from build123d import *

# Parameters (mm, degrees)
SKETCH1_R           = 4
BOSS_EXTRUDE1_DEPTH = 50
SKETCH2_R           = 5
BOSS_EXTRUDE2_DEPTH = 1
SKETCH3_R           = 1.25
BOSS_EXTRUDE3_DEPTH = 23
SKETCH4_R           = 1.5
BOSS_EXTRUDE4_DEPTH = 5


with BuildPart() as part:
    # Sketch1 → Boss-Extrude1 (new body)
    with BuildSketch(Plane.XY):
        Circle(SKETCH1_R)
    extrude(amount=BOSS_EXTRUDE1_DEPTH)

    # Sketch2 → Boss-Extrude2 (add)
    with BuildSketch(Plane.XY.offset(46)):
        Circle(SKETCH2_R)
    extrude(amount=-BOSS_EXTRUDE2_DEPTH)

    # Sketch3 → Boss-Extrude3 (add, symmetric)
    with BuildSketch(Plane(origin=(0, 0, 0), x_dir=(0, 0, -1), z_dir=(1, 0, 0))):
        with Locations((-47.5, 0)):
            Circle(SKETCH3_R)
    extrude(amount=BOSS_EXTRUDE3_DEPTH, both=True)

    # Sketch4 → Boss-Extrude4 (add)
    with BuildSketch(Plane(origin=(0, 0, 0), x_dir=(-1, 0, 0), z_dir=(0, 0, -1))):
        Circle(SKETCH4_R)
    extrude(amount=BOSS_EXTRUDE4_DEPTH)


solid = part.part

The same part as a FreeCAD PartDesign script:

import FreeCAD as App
import Part
import Sketcher
from FreeCAD import Vector

doc = App.newDocument("Part")
body = doc.addObject("PartDesign::Body", "Body")

# Sketch on XY plane
sketch1 = doc.addObject("Sketcher::SketchObject", "Sketch")
body.addObject(sketch1)
sketch1.AttachmentSupport = (doc.XY_Plane, [""])
sketch1.MapMode = "FlatFace"
sketch1.addGeometry(Part.Circle(Vector(0, 0, 0), Vector(0, 0, 1), 4), False)
sketch1.addConstraint([
    Sketcher.Constraint("Coincident", 0, 3, -1, 1),
    Sketcher.Constraint("Diameter", 0, 8.0),
])
pad1 = doc.addObject("PartDesign::Pad", "Pad")
body.addObject(pad1)
pad1.Profile = sketch1
pad1.Length = 50

# Sketch on XY plane
sketch2 = doc.addObject("Sketcher::SketchObject", "Sketch001")
body.addObject(sketch2)
sketch2.AttachmentSupport = (doc.XY_Plane, [""])
sketch2.MapMode = "FlatFace"
sketch2.AttachmentOffset = App.Placement(Vector(0, 0, 46), App.Rotation())
sketch2.addGeometry(Part.Circle(Vector(0, 0, 0), Vector(0, 0, 1), 5), False)
sketch2.addConstraint([
    Sketcher.Constraint("Coincident", 0, 3, -1, 1),
    Sketcher.Constraint("Diameter", 0, 10.0),
])
pad2 = doc.addObject("PartDesign::Pad", "Pad001")
body.addObject(pad2)
pad2.Profile = sketch2
pad2.Length = 1
pad2.Reversed = True

# Sketch on YZ plane
sketch3 = doc.addObject("Sketcher::SketchObject", "Sketch002")
body.addObject(sketch3)
sketch3.AttachmentSupport = (doc.YZ_Plane, [""])
sketch3.MapMode = "FlatFace"
sketch3.addGeometry(Part.Circle(Vector(0, 47.5, 0), Vector(0, 0, 1), 1.2), False)
sketch3.addConstraint([
    Sketcher.Constraint("PointOnObject", 0, 3, -2),
    Sketcher.Constraint("Diameter", 0, 2.5),
    Sketcher.Constraint("DistanceY", -1, 1, 0, 3, 47.5),
])
pad3 = doc.addObject("PartDesign::Pad", "Pad002")
body.addObject(pad3)
pad3.Profile = sketch3
pad3.Length = 46
pad3.Midplane = True

# Sketch on XY plane
sketch4 = doc.addObject("Sketcher::SketchObject", "Sketch003")
body.addObject(sketch4)
sketch4.AttachmentSupport = (doc.XY_Plane, [""])
sketch4.MapMode = "FlatFace"
sketch4.addGeometry(Part.Circle(Vector(0, 0, 0), Vector(0, 0, 1), 1.5), False)
sketch4.addConstraint([
    Sketcher.Constraint("Coincident", 0, 3, -1, 1),
    Sketcher.Constraint("Diameter", 0, 3.0),
])
pad4 = doc.addObject("PartDesign::Pad", "Pad003")
body.addObject(pad4)
pad4.Profile = sketch4
pad4.Length = 5
pad4.Reversed = True

doc.recompute()
